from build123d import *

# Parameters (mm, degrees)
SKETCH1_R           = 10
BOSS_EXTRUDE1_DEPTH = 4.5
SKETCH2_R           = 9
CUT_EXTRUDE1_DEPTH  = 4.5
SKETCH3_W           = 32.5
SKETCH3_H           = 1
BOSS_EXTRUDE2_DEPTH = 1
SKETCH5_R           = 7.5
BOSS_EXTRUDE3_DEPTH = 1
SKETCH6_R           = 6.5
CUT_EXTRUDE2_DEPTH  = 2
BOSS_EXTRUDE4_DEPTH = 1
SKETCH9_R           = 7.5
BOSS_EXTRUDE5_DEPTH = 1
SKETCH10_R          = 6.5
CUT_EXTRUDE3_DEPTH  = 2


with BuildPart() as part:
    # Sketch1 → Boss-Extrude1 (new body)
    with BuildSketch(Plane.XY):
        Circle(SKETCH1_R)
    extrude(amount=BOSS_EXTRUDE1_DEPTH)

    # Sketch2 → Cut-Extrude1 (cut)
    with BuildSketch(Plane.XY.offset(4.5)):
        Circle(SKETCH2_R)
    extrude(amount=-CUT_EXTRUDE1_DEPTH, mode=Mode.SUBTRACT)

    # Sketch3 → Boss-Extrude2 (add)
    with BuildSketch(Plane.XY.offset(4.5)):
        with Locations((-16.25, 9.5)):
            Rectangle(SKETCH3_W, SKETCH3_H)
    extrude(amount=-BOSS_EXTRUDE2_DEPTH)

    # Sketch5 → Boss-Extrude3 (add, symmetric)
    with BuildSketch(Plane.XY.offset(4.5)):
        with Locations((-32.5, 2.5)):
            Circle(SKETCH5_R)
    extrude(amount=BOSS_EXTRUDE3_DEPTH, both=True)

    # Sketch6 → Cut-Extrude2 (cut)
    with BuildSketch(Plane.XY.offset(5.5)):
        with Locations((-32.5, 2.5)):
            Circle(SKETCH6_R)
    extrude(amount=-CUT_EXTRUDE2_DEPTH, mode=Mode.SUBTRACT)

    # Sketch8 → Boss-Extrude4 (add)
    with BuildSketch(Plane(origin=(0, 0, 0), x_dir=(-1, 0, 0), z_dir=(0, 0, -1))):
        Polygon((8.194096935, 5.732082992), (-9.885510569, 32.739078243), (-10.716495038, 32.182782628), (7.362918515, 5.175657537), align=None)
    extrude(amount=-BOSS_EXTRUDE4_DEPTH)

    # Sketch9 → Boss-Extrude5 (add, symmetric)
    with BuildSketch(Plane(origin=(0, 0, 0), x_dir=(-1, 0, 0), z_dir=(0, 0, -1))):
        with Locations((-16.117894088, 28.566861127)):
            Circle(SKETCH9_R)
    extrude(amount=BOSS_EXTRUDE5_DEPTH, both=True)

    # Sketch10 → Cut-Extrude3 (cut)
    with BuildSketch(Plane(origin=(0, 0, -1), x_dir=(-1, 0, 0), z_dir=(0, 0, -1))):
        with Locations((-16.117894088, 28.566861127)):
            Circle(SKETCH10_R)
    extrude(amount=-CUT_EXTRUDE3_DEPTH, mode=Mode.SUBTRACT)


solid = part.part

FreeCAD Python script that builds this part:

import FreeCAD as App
import Part
import Sketcher
from FreeCAD import Vector
Q = App.Units.Quantity

doc = App.newDocument("Part")
body = doc.addObject("PartDesign::Body", "Body")

# Sketch on XY plane
sketch1 = body.newObject("Sketcher::SketchObject", "Sketch")
sketch1.AttachmentSupport = (doc.getObject("XY_Plane"), [""])
sketch1.MapMode = "FlatFace"
sketch1.addGeometry(Part.Circle(Vector(0, 0, 0), Vector(0, 0, 1), 10), False)
sketch1.addConstraint(Sketcher.Constraint("Coincident", 0, 3, -1, 1))
sketch1.addConstraint(Sketcher.Constraint("Diameter", 0, 20.0))
pad1 = body.newObject("PartDesign::Pad", "Pad")
pad1.Profile = sketch1
pad1.Length = 4.5

# Sketch on XY plane
sketch2 = body.newObject("Sketcher::SketchObject", "Sketch001")
sketch2.AttachmentSupport = (doc.getObject("XY_Plane"), [""])
sketch2.MapMode = "FlatFace"
sketch2.AttachmentOffset = App.Placement(Vector(0, 0, 4.5), App.Rotation())
sketch2.addGeometry(Part.Circle(Vector(0, 0, 0), Vector(0, 0, 1), 9), False)
sketch2.addConstraint(Sketcher.Constraint("Coincident", 0, 3, -1, 1))
sketch2.addConstraint(Sketcher.Constraint("Diameter", 0, 18.0))
pocket1 = body.newObject("PartDesign::Pocket", "Pocket")
pocket1.Profile = sketch2
pocket1.Length = 4.5

# Sketch on XY plane
sketch3 = body.newObject("Sketcher::SketchObject", "Sketch002")
sketch3.AttachmentSupport = (doc.getObject("XY_Plane"), [""])
sketch3.MapMode = "FlatFace"
sketch3.AttachmentOffset = App.Placement(Vector(0, 0, 4.5), App.Rotation())
sketch3.addGeometry(Part.LineSegment(Vector(-32.5, 10, 0), Vector(-32.5, 9, 0)), False)
sketch3.addGeometry(Part.LineSegment(Vector(-32.5, 9, 0), Vector(0, 9, 0)), False)
sketch3.addGeometry(Part.LineSegment(Vector(0, 9, 0), Vector(0, 10, 0)), False)
sketch3.addGeometry(Part.LineSegment(Vector(0, 10, 0), Vector(-32.5, 10, 0)), False)
sketch3.addConstraint(Sketcher.Constraint("Coincident", 0, 2, 1, 1))
sketch3.addConstraint(Sketcher.Constraint("Coincident", 1, 2, 2, 1))
sketch3.addConstraint(Sketcher.Constraint("Coincident", 2, 2, 3, 1))
sketch3.addConstraint(Sketcher.Constraint("Coincident", 3, 2, 0, 1))
sketch3.addConstraint(Sketcher.Constraint("Vertical", 0))
sketch3.addConstraint(Sketcher.Constraint("Horizontal", 1))
sketch3.addConstraint(Sketcher.Constraint("Vertical", 2))
sketch3.addConstraint(Sketcher.Constraint("Horizontal", 3))
sketch3.addConstraint(Sketcher.Constraint("PointOnObject", 1, 2, -2))
sketch3.addConstraint(Sketcher.Constraint("DistanceY", 0, 2, 0, 1, 1.0))
sketch3.addConstraint(Sketcher.Constraint("DistanceX", 1, 1, 1, 2, 32.5))
sketch3.addConstraint(Sketcher.Constraint("DistanceY", -1, 1, 0, 2, 9.0))
pad2 = body.newObject("PartDesign::Pad", "Pad001")
pad2.Profile = sketch3
pad2.Length = 1
pad2.Reversed = True

# Sketch on XY plane
sketch4 = body.newObject("Sketcher::SketchObject", "Sketch003")
sketch4.AttachmentSupport = (doc.getObject("XY_Plane"), [""])
sketch4.MapMode = "FlatFace"
sketch4.AttachmentOffset = App.Placement(Vector(0, 0, 4.5), App.Rotation())
sketch4.addGeometry(Part.Circle(Vector(-32, 2, 0), Vector(0, 0, 1), 8), False)
sketch4.addConstraint(Sketcher.Constraint("Diameter", 0, 15.0))
sketch4.addConstraint(Sketcher.Constraint("DistanceX", 0, 3, -1, 1, 32.5))
sketch4.addConstraint(Sketcher.Constraint("DistanceY", -1, 1, 0, 3, 2.5))
pad3 = body.newObject("PartDesign::Pad", "Pad002")
pad3.Profile = sketch4
pad3.Length = 2
pad3.Midplane = True

# Sketch on XY plane
sketch5 = body.newObject("Sketcher::SketchObject", "Sketch004")
sketch5.AttachmentSupport = (doc.getObject("XY_Plane"), [""])
sketch5.MapMode = "FlatFace"
sketch5.AttachmentOffset = App.Placement(Vector(0, 0, 5.5), App.Rotation())
sketch5.addGeometry(Part.Circle(Vector(-32, 2, 0), Vector(0, 0, 1), 6), False)
sketch5.addConstraint(Sketcher.Constraint("Diameter", 0, 13.0))
sketch5.addConstraint(Sketcher.Constraint("DistanceX", 0, 3, -1, 1, 32.5))
sketch5.addConstraint(Sketcher.Constraint("DistanceY", -1, 1, 0, 3, 2.5))
pocket2 = body.newObject("PartDesign::Pocket", "Pocket001")
pocket2.Profile = sketch5
pocket2.Length = 2

# Sketch on XY plane
sketch6 = body.newObject("Sketcher::SketchObject", "Sketch005")
sketch6.AttachmentSupport = (doc.getObject("XY_Plane"), [""])
sketch6.MapMode = "FlatFace"
sketch6.addGeometry(Part.LineSegment(Vector(-8.2, 5.7, 0), Vector(9.9, 32.7, 0)), False)
sketch6.addGeometry(Part.LineSegment(Vector(9.9, 32.7, 0), Vector(10.7, 32.2, 0)), False)
sketch6.addGeometry(Part.LineSegment(Vector(10.7, 32.2, 0), Vector(-7.4, 5.2, 0)), False)
sketch6.addGeometry(Part.LineSegment(Vector(-7.4, 5.2, 0), Vector(-8.2, 5.7, 0)), False)
sketch6.addConstraint(Sketcher.Constraint("Coincident", 0, 2, 1, 1))
sketch6.addConstraint(Sketcher.Constraint("Coincident", 1, 2, 2, 1))
sketch6.addConstraint(Sketcher.Constraint("Coincident", 2, 2, 3, 1))
sketch6.addConstraint(Sketcher.Constraint("Coincident", 3, 2, 0, 1))
sketch6.addConstraint(Sketcher.Constraint("Perpendicular", 0, 1))
sketch6.addConstraint(Sketcher.Constraint("Parallel", 1, 3))
sketch6.addConstraint(Sketcher.Constraint("Distance", 1, 1.0))
sketch6.addConstraint(Sketcher.Constraint("Angle", 0, Q("56.2 deg")))
sketch6.addConstraint(Sketcher.Constraint("Distance", 0, 32.5))
sketch6.addConstraint(Sketcher.Constraint("DistanceX", -1, 1, 0, 2, 9.885511))
sketch6.addConstraint(Sketcher.Constraint("DistanceY", -1, 1, 0, 2, 32.739078))
sketch6.addConstraint(Sketcher.Constraint("DistanceX", 2, 2, -1, 1, 7.362919))
pad4 = body.newObject("PartDesign::Pad", "Pad003")
pad4.Profile = sketch6
pad4.Length = 1

# Sketch on XY plane
sketch7 = body.newObject("Sketcher::SketchObject", "Sketch006")
sketch7.AttachmentSupport = (doc.getObject("XY_Plane"), [""])
sketch7.MapMode = "FlatFace"
sketch7.addGeometry(Part.Circle(Vector(16, 29, 0), Vector(0, 0, 1), 8), False)
sketch7.addConstraint(Sketcher.Constraint("Diameter", 0, 15.0))
sketch7.addConstraint(Sketcher.Constraint("DistanceY", -1, 1, 0, 3, 28.566861))
sketch7.addConstraint(Sketcher.Constraint("DistanceX", -1, 1, 0, 3, 16.117894))
pad5 = body.newObject("PartDesign::Pad", "Pad004")
pad5.Profile = sketch7
pad5.Length = 2
pad5.Midplane = True

# Sketch on XY plane
sketch8 = body.newObject("Sketcher::SketchObject", "Sketch007")
sketch8.AttachmentSupport = (doc.getObject("XY_Plane"), [""])
sketch8.MapMode = "FlatFace"
sketch8.AttachmentOffset = App.Placement(Vector(0, 0, -1), App.Rotation())
sketch8.addGeometry(Part.Circle(Vector(16, 29, 0), Vector(0, 0, 1), 6), False)
sketch8.addConstraint(Sketcher.Constraint("Diameter", 0, 13.0))
sketch8.addConstraint(Sketcher.Constraint("DistanceY", -1, 1, 0, 3, 28.566861))
sketch8.addConstraint(Sketcher.Constraint("DistanceX", -1, 1, 0, 3, 16.117894))
pocket3 = body.newObject("PartDesign::Pocket", "Pocket002")
pocket3.Profile = sketch8
pocket3.Length = 2
pocket3.Reversed = True

doc.recompute()
